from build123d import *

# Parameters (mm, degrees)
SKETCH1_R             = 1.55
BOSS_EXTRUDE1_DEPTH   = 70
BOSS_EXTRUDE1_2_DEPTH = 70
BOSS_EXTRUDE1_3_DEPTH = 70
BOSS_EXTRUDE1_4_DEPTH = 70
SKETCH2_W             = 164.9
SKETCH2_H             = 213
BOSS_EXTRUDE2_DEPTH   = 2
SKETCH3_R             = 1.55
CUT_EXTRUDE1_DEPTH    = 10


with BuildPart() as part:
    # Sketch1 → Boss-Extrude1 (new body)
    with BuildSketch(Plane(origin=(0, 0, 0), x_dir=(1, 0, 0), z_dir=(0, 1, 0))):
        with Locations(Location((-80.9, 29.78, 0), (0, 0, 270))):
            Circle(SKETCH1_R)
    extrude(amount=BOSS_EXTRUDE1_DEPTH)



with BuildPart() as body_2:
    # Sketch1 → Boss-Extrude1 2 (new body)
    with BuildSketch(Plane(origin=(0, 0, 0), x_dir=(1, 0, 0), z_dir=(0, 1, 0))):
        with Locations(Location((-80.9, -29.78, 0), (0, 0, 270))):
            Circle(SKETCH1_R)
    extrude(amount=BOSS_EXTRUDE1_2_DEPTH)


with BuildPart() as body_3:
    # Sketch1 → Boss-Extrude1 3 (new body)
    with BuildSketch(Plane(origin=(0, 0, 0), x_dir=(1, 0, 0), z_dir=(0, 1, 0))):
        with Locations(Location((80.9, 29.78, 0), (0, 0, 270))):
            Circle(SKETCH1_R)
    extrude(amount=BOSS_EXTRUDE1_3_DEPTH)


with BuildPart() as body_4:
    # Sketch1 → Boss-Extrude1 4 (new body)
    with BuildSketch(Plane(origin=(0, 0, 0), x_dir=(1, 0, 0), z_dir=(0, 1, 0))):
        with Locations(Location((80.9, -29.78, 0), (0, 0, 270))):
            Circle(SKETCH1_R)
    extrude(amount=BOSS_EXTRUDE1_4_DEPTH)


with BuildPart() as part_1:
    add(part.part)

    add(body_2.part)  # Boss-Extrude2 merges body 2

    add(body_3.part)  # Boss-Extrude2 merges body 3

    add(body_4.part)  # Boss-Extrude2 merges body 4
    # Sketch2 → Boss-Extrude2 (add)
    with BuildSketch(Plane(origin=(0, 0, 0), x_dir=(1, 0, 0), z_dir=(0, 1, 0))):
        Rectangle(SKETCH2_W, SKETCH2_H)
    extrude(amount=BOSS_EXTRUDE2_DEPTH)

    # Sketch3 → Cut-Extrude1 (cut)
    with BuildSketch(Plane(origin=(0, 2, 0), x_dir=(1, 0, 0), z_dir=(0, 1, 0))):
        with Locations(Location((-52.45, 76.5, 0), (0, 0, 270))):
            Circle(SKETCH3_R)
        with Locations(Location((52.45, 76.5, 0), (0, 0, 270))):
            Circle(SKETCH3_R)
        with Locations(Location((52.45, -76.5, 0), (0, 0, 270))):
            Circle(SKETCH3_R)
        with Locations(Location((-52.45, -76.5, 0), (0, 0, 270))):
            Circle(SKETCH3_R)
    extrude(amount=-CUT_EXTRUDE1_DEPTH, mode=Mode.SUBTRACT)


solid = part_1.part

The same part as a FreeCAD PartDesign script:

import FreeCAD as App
import Part
import Sketcher

V = App.Vector

doc = App.newDocument("Part")
body = doc.addObject("PartDesign::Body", "Body")

sketch1 = doc.addObject("Sketcher::SketchObject", "Sketch")
body.addObject(sketch1)
sketch1.AttachmentSupport = (doc.XZ_Plane, [""])
sketch1.MapMode = "FlatFace"
sketch1.addGeometry(Part.Circle(V(-80.9, -29.78, 0), V(0, 0, 1), 1.55), False)
sketch1.addConstraint([
    Sketcher.Constraint("Diameter", 0, 3.1),
    Sketcher.Constraint("DistanceX", 0, 3, -1, 1, 80.9),
    Sketcher.Constraint("DistanceY", 0, 3, -1, 1, 29.78),
])
pad1 = doc.addObject("PartDesign::Pad", "Pad")
body.addObject(pad1)
pad1.Profile = sketch1
pad1.Length = 70
pad1.Reversed = True
body2 = doc.addObject("PartDesign::Body", "Body001")

sketch2 = doc.addObject("Sketcher::SketchObject", "Sketch001")
body2.addObject(sketch2)
sketch2.AttachmentSupport = (doc.getObject("XZ_Plane001"), [""])
sketch2.MapMode = "FlatFace"
sketch2.addGeometry(Part.Circle(V(-80.9, 29.78, 0), V(0, 0, 1), 1.55), False)
sketch2.addConstraint([
    Sketcher.Constraint("Diameter", 0, 3.1),
    Sketcher.Constraint("DistanceX", 0, 3, -1, 1, 80.9),
    Sketcher.Constraint("DistanceY", -1, 1, 0, 3, 29.78),
])
pad2 = doc.addObject("PartDesign::Pad", "Pad001")
body2.addObject(pad2)
pad2.Profile = sketch2
pad2.Length = 70
pad2.Reversed = True
body3 = doc.addObject("PartDesign::Body", "Body002")

sketch3 = doc.addObject("Sketcher::SketchObject", "Sketch002")
body3.addObject(sketch3)
sketch3.AttachmentSupport = (doc.getObject("XZ_Plane002"), [""])
sketch3.MapMode = "FlatFace"
sketch3.addGeometry(Part.Circle(V(80.9, -29.78, 0), V(0, 0, 1), 1.55), False)
sketch3.addConstraint([
    Sketcher.Constraint("Diameter", 0, 3.1),
    Sketcher.Constraint("DistanceX", -1, 1, 0, 3, 80.9),
    Sketcher.Constraint("DistanceY", 0, 3, -1, 1, 29.78),
])
pad3 = doc.addObject("PartDesign::Pad", "Pad002")
body3.addObject(pad3)
pad3.Profile = sketch3
pad3.Length = 70
pad3.Reversed = True
body4 = doc.addObject("PartDesign::Body", "Body003")

sketch4 = doc.addObject("Sketcher::SketchObject", "Sketch003")
body4.addObject(sketch4)
sketch4.AttachmentSupport = (doc.getObject("XZ_Plane003"), [""])
sketch4.MapMode = "FlatFace"
sketch4.addGeometry(Part.Circle(V(80.9, 29.78, 0), V(0, 0, 1), 1.55), False)
sketch4.addConstraint([
    Sketcher.Constraint("Diameter", 0, 3.1),
    Sketcher.Constraint("DistanceX", -1, 1, 0, 3, 80.9),
    Sketcher.Constraint("DistanceY", -1, 1, 0, 3, 29.78),
])
pad4 = doc.addObject("PartDesign::Pad", "Pad003")
body4.addObject(pad4)
pad4.Profile = sketch4
pad4.Length = 70
pad4.Reversed = True
body.AllowCompound = True
doc.recompute()

boolean = doc.addObject("PartDesign::Boolean", "Boolean")
body.addObject(boolean)
boolean.Type = "Fuse"
boolean.addObjects([body2])
doc.recompute()

boolean2 = doc.addObject("PartDesign::Boolean", "Boolean001")
body.addObject(boolean2)
boolean2.Type = "Fuse"
boolean2.addObjects([body3])
doc.recompute()

boolean3 = doc.addObject("PartDesign::Boolean", "Boolean002")
body.addObject(boolean3)
boolean3.Type = "Fuse"
boolean3.addObjects([body4])

sketch5 = doc.addObject("Sketcher::SketchObject", "Sketch004")
body.addObject(sketch5)
sketch5.AttachmentSupport = (doc.XZ_Plane, [""])
sketch5.MapMode = "FlatFace"
sketch5.addGeometry([
    Part.LineSegment(V(-82.45, -106.5, 0), V(-82.45, 106.5, 0)),
    Part.LineSegment(V(-82.45, 106.5, 0), V(82.45, 106.5, 0)),
    Part.LineSegment(V(82.45, 106.5, 0), V(82.45, -106.5, 0)),
    Part.LineSegment(V(82.45, -106.5, 0), V(-82.45, -106.5, 0)),
], False)
sketch5.addConstraint([
    Sketcher.Constraint("Coincident", 0, 2, 1, 1),
    Sketcher.Constraint("Coincident", 1, 2, 2, 1),
    Sketcher.Constraint("Coincident", 2, 2, 3, 1),
    Sketcher.Constraint("Coincident", 3, 2, 0, 1),
    Sketcher.Constraint("Vertical", 0),
    Sketcher.Constraint("Horizontal", 1),
    Sketcher.Constraint("Vertical", 2),
    Sketcher.Constraint("Horizontal", 3),
    Sketcher.Constraint("Symmetric", 0, 2, 2, 2, -1, 1),
    Sketcher.Constraint("DistanceY", 0, 1, 0, 2, 213.0),
    Sketcher.Constraint("DistanceX", 1, 1, 1, 2, 164.9),
])
pad5 = doc.addObject("PartDesign::Pad", "Pad004")
body.addObject(pad5)
pad5.Profile = sketch5
pad5.Length = 2
pad5.Reversed = True

sketch6 = doc.addObject("Sketcher::SketchObject", "Sketch005")
body.addObject(sketch6)
sketch6.AttachmentSupport = (doc.XZ_Plane, [""])
sketch6.MapMode = "FlatFace"
sketch6.AttachmentOffset = App.Placement(V(0, 0, -2), App.Rotation())
sketch6.addGeometry([
    Part.Circle(V(-52.45, -76.5, 0), V(0, 0, 1), 1.55),
    Part.Circle(V(52.45, -76.5, 0), V(0, 0, 1), 1.55),
    Part.Circle(V(52.45, 76.5, 0), V(0, 0, 1), 1.55),
    Part.Circle(V(-52.45, 76.5, 0), V(0, 0, 1), 1.55),
], False)
sketch6.addConstraint([
    Sketcher.Constraint("Equal", 0, 1),
    Sketcher.Constraint("Equal", 1, 2),
    Sketcher.Constraint("Equal", 2, 3),
    Sketcher.Constraint("Symmetric", 0, 3, 2, 3, -1, 1),
    Sketcher.Constraint("Symmetric", 1, 3, 3, 3, -1, 1),
    Sketcher.Constraint("Symmetric", 0, 3, 1, 3, -2),
    Sketcher.Constraint("Diameter", 0, 3.1),
    Sketcher.Constraint("DistanceY", 1, 3, 2, 3, 153.0),
    Sketcher.Constraint("DistanceX", 0, 3, 1, 3, 104.9),
])
pocket1 = doc.addObject("PartDesign::Pocket", "Pocket")
body.addObject(pocket1)
pocket1.Profile = sketch6
pocket1.Length = 10
pocket1.Reversed = True

doc.recompute()
